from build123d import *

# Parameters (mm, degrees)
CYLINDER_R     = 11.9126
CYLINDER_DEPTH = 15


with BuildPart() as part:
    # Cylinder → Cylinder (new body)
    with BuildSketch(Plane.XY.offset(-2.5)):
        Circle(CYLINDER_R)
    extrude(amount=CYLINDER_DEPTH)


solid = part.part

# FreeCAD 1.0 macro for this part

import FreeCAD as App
import Part
import Sketcher
Q = App.Units.Quantity

doc = App.newDocument("Part")
body = doc.addObject("PartDesign::Body", "Body")

sketch1 = body.newObject("Sketcher::SketchObject", "Sketch")
sketch1.AttachmentSupport = (doc.getObject("XY_Plane"), [""])
sketch1.MapMode = "FlatFace"
sketch1.AttachmentOffset = App.Placement(App.Vector(0, 0, -2.5), App.Rotation())
sketch1.addGeometry(Part.Circle(App.Vector(0, 0, 0), App.Vector(0, 0, 1), 12), False)
sketch1.addConstraint(Sketcher.Constraint("Coincident", 0, 3, -1, 1))
sketch1.addConstraint(Sketcher.Constraint("Diameter", 0, Q("23.8252 mm")))
pad1 = body.newObject("PartDesign::Pad", "Pad")
pad1.Profile = sketch1
pad1.Length = 15

doc.recompute()
